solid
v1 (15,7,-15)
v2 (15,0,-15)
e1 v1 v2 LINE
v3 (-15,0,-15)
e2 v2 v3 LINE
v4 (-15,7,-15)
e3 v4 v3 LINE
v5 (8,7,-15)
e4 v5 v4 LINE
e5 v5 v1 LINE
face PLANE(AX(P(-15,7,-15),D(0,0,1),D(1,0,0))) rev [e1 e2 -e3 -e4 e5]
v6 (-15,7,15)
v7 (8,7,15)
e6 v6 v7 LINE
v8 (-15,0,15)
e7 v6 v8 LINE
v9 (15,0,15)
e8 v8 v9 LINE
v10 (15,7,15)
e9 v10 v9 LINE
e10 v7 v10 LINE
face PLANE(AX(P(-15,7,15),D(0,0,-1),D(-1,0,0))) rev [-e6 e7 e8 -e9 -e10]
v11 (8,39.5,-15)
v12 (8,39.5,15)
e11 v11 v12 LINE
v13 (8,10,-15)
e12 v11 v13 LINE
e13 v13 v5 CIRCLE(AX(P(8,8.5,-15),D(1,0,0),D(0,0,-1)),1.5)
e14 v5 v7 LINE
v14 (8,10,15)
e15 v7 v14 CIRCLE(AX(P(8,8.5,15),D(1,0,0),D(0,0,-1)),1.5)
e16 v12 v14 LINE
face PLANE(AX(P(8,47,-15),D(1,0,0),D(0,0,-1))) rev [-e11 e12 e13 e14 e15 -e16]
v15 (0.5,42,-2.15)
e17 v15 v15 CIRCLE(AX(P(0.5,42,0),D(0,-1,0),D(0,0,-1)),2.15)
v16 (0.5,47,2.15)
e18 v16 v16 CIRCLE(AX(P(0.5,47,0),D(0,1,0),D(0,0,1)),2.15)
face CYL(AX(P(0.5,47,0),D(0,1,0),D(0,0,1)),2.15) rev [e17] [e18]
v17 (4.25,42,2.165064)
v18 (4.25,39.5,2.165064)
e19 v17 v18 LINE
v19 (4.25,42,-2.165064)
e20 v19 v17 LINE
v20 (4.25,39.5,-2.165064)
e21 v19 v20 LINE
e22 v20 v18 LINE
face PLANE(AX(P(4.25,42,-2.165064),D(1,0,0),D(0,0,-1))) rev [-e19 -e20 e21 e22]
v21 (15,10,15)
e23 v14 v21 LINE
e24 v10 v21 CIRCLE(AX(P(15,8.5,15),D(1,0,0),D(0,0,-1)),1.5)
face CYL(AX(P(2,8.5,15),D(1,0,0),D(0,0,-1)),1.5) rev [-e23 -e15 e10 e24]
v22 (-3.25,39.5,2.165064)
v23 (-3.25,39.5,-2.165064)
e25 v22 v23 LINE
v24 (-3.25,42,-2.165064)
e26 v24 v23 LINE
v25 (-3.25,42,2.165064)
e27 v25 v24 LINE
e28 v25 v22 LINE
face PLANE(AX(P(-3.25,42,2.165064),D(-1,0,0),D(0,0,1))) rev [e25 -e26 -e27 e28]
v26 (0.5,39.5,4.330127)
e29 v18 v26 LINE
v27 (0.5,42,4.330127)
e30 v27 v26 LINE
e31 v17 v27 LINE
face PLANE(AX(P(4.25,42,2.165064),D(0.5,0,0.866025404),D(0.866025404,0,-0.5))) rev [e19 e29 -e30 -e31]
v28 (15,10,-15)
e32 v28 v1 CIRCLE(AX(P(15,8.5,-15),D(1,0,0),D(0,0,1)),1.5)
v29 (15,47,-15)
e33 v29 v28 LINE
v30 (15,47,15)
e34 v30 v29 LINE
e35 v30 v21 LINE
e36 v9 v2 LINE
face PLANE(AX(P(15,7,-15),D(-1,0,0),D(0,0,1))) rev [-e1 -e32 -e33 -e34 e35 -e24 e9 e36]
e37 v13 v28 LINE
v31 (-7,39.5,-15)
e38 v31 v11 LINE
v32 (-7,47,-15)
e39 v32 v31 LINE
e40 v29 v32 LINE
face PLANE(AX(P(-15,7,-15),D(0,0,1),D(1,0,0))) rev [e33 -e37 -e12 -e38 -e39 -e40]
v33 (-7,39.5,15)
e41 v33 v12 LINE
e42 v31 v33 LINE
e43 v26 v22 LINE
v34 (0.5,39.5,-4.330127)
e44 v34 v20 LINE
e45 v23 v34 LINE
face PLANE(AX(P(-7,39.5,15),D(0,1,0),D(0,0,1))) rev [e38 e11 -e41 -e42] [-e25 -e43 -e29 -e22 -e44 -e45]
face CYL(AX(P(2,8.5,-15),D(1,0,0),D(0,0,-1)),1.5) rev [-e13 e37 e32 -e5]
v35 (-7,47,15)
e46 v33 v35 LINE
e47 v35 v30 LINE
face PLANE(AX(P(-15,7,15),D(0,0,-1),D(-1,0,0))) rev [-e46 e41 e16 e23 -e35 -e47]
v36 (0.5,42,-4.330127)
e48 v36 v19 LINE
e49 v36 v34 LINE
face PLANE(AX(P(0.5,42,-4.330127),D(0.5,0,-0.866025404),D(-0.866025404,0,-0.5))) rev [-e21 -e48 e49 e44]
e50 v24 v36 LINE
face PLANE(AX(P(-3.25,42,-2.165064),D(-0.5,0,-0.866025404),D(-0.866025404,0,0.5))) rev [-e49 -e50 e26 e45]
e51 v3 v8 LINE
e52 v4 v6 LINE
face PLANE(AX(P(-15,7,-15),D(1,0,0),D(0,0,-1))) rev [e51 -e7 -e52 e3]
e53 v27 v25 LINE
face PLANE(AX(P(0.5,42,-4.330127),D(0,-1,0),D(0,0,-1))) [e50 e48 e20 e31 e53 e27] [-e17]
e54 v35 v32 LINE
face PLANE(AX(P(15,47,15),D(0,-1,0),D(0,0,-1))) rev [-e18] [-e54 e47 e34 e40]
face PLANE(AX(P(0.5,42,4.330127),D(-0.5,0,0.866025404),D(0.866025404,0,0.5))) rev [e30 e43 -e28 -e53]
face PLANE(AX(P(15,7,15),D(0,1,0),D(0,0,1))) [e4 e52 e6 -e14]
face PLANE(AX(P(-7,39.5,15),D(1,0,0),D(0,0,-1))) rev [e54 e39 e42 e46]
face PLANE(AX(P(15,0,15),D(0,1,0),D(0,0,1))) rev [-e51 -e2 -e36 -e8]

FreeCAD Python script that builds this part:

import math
import FreeCAD as App
import Part
import Sketcher
Q = App.Units.Quantity

doc = App.newDocument("Part")
params = doc.addObject("Spreadsheet::Sheet", "Params")
for row, (alias, value) in enumerate([
    ("sketch1_width", "30 mm"),
    ("pad1_length", "7 mm"),
    ("sketch2_width", "7 mm"),
    ("sketch2_height", "30 mm"),
    ("pad2_length", "40 mm"),
    ("sketch3_height", "30 mm"),
    ("sketch3_width", "7.5 mm"),
    ("pad3_length", "15 mm"),
    ("pocket1_length", "2.5 mm"),
    ("sketch5_diameter", "4.3 mm"),
    ("hole_diameter", "4.3 mm"),
    ("hole_depth", "6 mm"),
    ("sketch6_radius", "1.5 mm"),
    ("pocket2_length", "13 mm"),
], start=1):
    params.set(f"A{row}", alias)
    params.set(f"B{row}", "=" + value)
    params.setAlias(f"B{row}", alias)

body = doc.addObject("PartDesign::Body", "Body")

# Sketch on XZ plane
sketch1 = body.newObject("Sketcher::SketchObject", "Sketch")
sketch1.AttachmentSupport = (doc.getObject("XZ_Plane"), [""])
sketch1.MapMode = "FlatFace"
sketch1.addGeometry([
    Part.LineSegment(App.Vector(-15, -15, 0), App.Vector(-15, 15, 0)),
    Part.LineSegment(App.Vector(-15, 15, 0), App.Vector(15, 15, 0)),
    Part.LineSegment(App.Vector(15, 15, 0), App.Vector(15, -15, 0)),
    Part.LineSegment(App.Vector(15, -15, 0), App.Vector(-15, -15, 0)),
], False)
sketch1.addConstraint([
    Sketcher.Constraint("Coincident", 0, 2, 1, 1),
    Sketcher.Constraint("Coincident", 1, 2, 2, 1),
    Sketcher.Constraint("Coincident", 2, 2, 3, 1),
    Sketcher.Constraint("Coincident", 3, 2, 0, 1),
    Sketcher.Constraint("Vertical", 0),
    Sketcher.Constraint("Horizontal", 1),
    Sketcher.Constraint("Vertical", 2),
    Sketcher.Constraint("Horizontal", 3),
    Sketcher.Constraint("Symmetric", 0, 2, 2, 2, -1, 1),
    Sketcher.Constraint("Equal", 3, 0),
    Sketcher.Constraint("DistanceX", 1, 1, 1, 2, 30.0),
])
sketch1.setExpression("Constraints[10]", "Params.sketch1_width")
pad1 = body.newObject("PartDesign::Pad", "Pad")
pad1.Profile = sketch1
pad1.setExpression("Length", "Params.pad1_length")
pad1.Reversed = True

# Sketch on XZ plane
sketch2 = body.newObject("Sketcher::SketchObject", "Sketch001")
sketch2.AttachmentSupport = (doc.getObject("XZ_Plane"), [""])
sketch2.MapMode = "FlatFace"
sketch2.AttachmentOffset = App.Placement(App.Vector(0, 0, -7), App.Rotation())
sketch2.addGeometry([
    Part.LineSegment(App.Vector(8, -15, 0), App.Vector(8, 15, 0)),
    Part.LineSegment(App.Vector(8, 15, 0), App.Vector(15, 15, 0)),
    Part.LineSegment(App.Vector(15, 15, 0), App.Vector(15, -15, 0)),
    Part.LineSegment(App.Vector(15, -15, 0), App.Vector(8, -15, 0)),
], False)
sketch2.addConstraint([
    Sketcher.Constraint("Coincident", 0, 2, 1, 1),
    Sketcher.Constraint("Coincident", 1, 2, 2, 1),
    Sketcher.Constraint("Coincident", 2, 2, 3, 1),
    Sketcher.Constraint("Coincident", 3, 2, 0, 1),
    Sketcher.Constraint("Vertical", 0),
    Sketcher.Constraint("Horizontal", 1),
    Sketcher.Constraint("Vertical", 2),
    Sketcher.Constraint("Horizontal", 3),
    Sketcher.Constraint("DistanceX", 1, 1, 1, 2, 7.0),
    Sketcher.Constraint("DistanceY", 0, 1, 0, 2, 30.0),
    Sketcher.Constraint("DistanceX", -1, 1, 0, 2, 8.0),
    Sketcher.Constraint("DistanceY", -1, 1, 0, 2, 15.0),
])
sketch2.setExpression("Constraints[8]", "Params.sketch2_width")
sketch2.setExpression("Constraints[9]", "Params.sketch2_height")
pad2 = body.newObject("PartDesign::Pad", "Pad001")
pad2.Profile = sketch2
pad2.setExpression("Length", "Params.pad2_length")
pad2.Reversed = True

# Sketch on YZ plane
sketch3 = body.newObject("Sketcher::SketchObject", "Sketch002")
sketch3.AttachmentSupport = (doc.getObject("YZ_Plane"), [""])
sketch3.MapMode = "FlatFace"
sketch3.AttachmentOffset = App.Placement(App.Vector(0, 0, 8), App.Rotation())
sketch3.addGeometry([
    Part.LineSegment(App.Vector(47, -15, 0), App.Vector(40, -15, 0)),
    Part.LineSegment(App.Vector(40, -15, 0), App.Vector(40, 15, 0)),
    Part.LineSegment(App.Vector(40, 15, 0), App.Vector(47, 15, 0)),
    Part.LineSegment(App.Vector(47, 15, 0), App.Vector(47, -15, 0)),
], False)
sketch3.addConstraint([
    Sketcher.Constraint("Coincident", 0, 2, 1, 1),
    Sketcher.Constraint("Coincident", 1, 2, 2, 1),
    Sketcher.Constraint("Coincident", 2, 2, 3, 1),
    Sketcher.Constraint("Coincident", 3, 2, 0, 1),
    Sketcher.Constraint("Horizontal", 0),
    Sketcher.Constraint("Vertical", 1),
    Sketcher.Constraint("Horizontal", 2),
    Sketcher.Constraint("Vertical", 3),
    Sketcher.Constraint("DistanceY", 1, 1, 1, 2, 30.0),
    Sketcher.Constraint("DistanceX", 0, 2, 0, 1, 7.5),
    Sketcher.Constraint("DistanceY", 0, 2, -1, 1, 15.0),
    Sketcher.Constraint("DistanceX", -1, 1, 2, 2, 47.0),
])
sketch3.setExpression("Constraints[8]", "Params.sketch3_height")
sketch3.setExpression("Constraints[9]", "Params.sketch3_width")
pad3 = body.newObject("PartDesign::Pad", "Pad002")
pad3.Profile = sketch3
pad3.setExpression("Length", "Params.pad3_length")
pad3.Reversed = True

# Sketch on XZ plane
sketch4 = body.newObject("Sketcher::SketchObject", "Sketch003")
sketch4.AttachmentSupport = (doc.getObject("XZ_Plane"), [""])
sketch4.MapMode = "FlatFace"
sketch4.AttachmentOffset = App.Placement(App.Vector(0, 0, -39.5), App.Rotation())
sketch4.addGeometry([
    Part.LineSegment(App.Vector(0.5, -4.3, 0), App.Vector(4.2, -2.2, 0)),  # 0
    Part.LineSegment(App.Vector(4.2, -2.2, 0), App.Vector(4.2, 2.2, 0)),  # 1
    Part.LineSegment(App.Vector(4.2, 2.2, 0), App.Vector(0.5, 4.3, 0)),  # 2
    Part.LineSegment(App.Vector(0.5, 4.3, 0), App.Vector(-3.2, 2.2, 0)),  # 3
    Part.LineSegment(App.Vector(-3.2, 2.2, 0), App.Vector(-3.2, -2.2, 0)),  # 4
    Part.LineSegment(App.Vector(-3.2, -2.2, 0), App.Vector(0.5, -4.3, 0)),  # 5
], False)
sketch4.addConstraint([
    Sketcher.Constraint("Coincident", 0, 2, 1, 1),
    Sketcher.Constraint("Coincident", 1, 2, 2, 1),
    Sketcher.Constraint("Coincident", 2, 2, 3, 1),
    Sketcher.Constraint("Coincident", 3, 2, 4, 1),
    Sketcher.Constraint("Coincident", 4, 2, 5, 1),
    Sketcher.Constraint("Coincident", 5, 2, 0, 1),
    Sketcher.Constraint("Vertical", 1),
    Sketcher.Constraint("Vertical", 4),
    Sketcher.Constraint("Symmetric", 2, 2, 5, 2, -1),
    Sketcher.Constraint("Parallel", 0, 3),
    Sketcher.Constraint("Parallel", 2, 5),
    Sketcher.Constraint("Horizontal", 1, 2, 3, 2),
    Sketcher.Constraint("Horizontal", 0, 2, 4, 2),
    Sketcher.Constraint("Angle", 0, Q("30 deg")),
    Sketcher.Constraint("DistanceX", -1, 1, 2, 2, 0.5),
    Sketcher.Constraint("DistanceX", 3, 2, 1, 2, 7.5),
    Sketcher.Constraint("DistanceY", 1, 1, 1, 2, 4.330127),
])
pocket1 = body.newObject("PartDesign::Pocket", "Pocket")
pocket1.Profile = sketch4
pocket1.setExpression("Length", "Params.pocket1_length")

# Sketch on XZ plane
sketch5 = body.newObject("Sketcher::SketchObject", "Sketch004")
sketch5.AttachmentSupport = (doc.getObject("XZ_Plane"), [""])
sketch5.MapMode = "FlatFace"
sketch5.AttachmentOffset = App.Placement(App.Vector(0, 0, -47), App.Rotation())
sketch5.addGeometry(Part.Circle(App.Vector(0.5, 0, 0), App.Vector(0, 0, 1), 2.1), False)
sketch5.addConstraint([
    Sketcher.Constraint("PointOnObject", 0, 3, -1),
    Sketcher.Constraint("Diameter", 0, 4.3),
    Sketcher.Constraint("DistanceX", -1, 1, 0, 3, 0.5),
])
sketch5.setExpression("Constraints[1]", "Params.sketch5_diameter")
doc.recompute()
hole = body.newObject("PartDesign::Hole", "Hole")
hole.Profile = sketch5
hole.ThreadType = "None"
hole.setExpression("Diameter", "Params.hole_diameter")
hole.DepthType = "Dimension"
hole.setExpression("Depth", "Params.hole_depth")
hole.DrillPoint = "Angled"
hole.DrillPointAngle = 118
hole.Reversed = True

# Sketch on YZ plane
sketch6 = body.newObject("Sketcher::SketchObject", "Sketch005")
sketch6.AttachmentSupport = (doc.getObject("YZ_Plane"), [""])
sketch6.MapMode = "FlatFace"
sketch6.AttachmentOffset = App.Placement(App.Vector(0, 0, 15), App.Rotation())
sketch6.addGeometry([
    Part.LineSegment(App.Vector(10, 15, 0), App.Vector(7, 15, 0)),
    Part.ArcOfCircle(Part.Circle(App.Vector(8.5, 15, 0), App.Vector(0, 0, 1), 1.5), math.radians(180), math.radians(360)),
    Part.LineSegment(App.Vector(7, -15, 0), App.Vector(10, -15, 0)),
    Part.ArcOfCircle(Part.Circle(App.Vector(8.5, -15, 0), App.Vector(0, 0, 1), 1.5), math.radians(0), math.radians(180)),
], False)
sketch6.addConstraint([
    Sketcher.Constraint("Coincident", 0, 1, 1, 2),
    Sketcher.Constraint("Coincident", 1, 1, 0, 2),
    Sketcher.Constraint("Coincident", 2, 1, 3, 2),
    Sketcher.Constraint("Coincident", 3, 1, 2, 2),
    Sketcher.Constraint("Horizontal", 0),
    Sketcher.Constraint("Horizontal", 2),
    Sketcher.Constraint("Equal", 1, 3),
    Sketcher.Constraint("Symmetric", 1, 3, 3, 3, -1),
    Sketcher.Constraint("Horizontal", 1, 3, 0, 1),
    Sketcher.Constraint("Horizontal", 3, 3, 2, 1),
    Sketcher.Constraint("Radius", 1, 1.5),
    Sketcher.Constraint("DistanceY", -1, 1, 1, 3, 15.0),
    Sketcher.Constraint("DistanceX", -1, 1, 0, 1, 10.0),
])
sketch6.setExpression("Constraints[10]", "Params.sketch6_radius")
pocket2 = body.newObject("PartDesign::Pocket", "Pocket001")
pocket2.Profile = sketch6
pocket2.setExpression("Length", "Params.pocket2_length")

doc.recompute()
